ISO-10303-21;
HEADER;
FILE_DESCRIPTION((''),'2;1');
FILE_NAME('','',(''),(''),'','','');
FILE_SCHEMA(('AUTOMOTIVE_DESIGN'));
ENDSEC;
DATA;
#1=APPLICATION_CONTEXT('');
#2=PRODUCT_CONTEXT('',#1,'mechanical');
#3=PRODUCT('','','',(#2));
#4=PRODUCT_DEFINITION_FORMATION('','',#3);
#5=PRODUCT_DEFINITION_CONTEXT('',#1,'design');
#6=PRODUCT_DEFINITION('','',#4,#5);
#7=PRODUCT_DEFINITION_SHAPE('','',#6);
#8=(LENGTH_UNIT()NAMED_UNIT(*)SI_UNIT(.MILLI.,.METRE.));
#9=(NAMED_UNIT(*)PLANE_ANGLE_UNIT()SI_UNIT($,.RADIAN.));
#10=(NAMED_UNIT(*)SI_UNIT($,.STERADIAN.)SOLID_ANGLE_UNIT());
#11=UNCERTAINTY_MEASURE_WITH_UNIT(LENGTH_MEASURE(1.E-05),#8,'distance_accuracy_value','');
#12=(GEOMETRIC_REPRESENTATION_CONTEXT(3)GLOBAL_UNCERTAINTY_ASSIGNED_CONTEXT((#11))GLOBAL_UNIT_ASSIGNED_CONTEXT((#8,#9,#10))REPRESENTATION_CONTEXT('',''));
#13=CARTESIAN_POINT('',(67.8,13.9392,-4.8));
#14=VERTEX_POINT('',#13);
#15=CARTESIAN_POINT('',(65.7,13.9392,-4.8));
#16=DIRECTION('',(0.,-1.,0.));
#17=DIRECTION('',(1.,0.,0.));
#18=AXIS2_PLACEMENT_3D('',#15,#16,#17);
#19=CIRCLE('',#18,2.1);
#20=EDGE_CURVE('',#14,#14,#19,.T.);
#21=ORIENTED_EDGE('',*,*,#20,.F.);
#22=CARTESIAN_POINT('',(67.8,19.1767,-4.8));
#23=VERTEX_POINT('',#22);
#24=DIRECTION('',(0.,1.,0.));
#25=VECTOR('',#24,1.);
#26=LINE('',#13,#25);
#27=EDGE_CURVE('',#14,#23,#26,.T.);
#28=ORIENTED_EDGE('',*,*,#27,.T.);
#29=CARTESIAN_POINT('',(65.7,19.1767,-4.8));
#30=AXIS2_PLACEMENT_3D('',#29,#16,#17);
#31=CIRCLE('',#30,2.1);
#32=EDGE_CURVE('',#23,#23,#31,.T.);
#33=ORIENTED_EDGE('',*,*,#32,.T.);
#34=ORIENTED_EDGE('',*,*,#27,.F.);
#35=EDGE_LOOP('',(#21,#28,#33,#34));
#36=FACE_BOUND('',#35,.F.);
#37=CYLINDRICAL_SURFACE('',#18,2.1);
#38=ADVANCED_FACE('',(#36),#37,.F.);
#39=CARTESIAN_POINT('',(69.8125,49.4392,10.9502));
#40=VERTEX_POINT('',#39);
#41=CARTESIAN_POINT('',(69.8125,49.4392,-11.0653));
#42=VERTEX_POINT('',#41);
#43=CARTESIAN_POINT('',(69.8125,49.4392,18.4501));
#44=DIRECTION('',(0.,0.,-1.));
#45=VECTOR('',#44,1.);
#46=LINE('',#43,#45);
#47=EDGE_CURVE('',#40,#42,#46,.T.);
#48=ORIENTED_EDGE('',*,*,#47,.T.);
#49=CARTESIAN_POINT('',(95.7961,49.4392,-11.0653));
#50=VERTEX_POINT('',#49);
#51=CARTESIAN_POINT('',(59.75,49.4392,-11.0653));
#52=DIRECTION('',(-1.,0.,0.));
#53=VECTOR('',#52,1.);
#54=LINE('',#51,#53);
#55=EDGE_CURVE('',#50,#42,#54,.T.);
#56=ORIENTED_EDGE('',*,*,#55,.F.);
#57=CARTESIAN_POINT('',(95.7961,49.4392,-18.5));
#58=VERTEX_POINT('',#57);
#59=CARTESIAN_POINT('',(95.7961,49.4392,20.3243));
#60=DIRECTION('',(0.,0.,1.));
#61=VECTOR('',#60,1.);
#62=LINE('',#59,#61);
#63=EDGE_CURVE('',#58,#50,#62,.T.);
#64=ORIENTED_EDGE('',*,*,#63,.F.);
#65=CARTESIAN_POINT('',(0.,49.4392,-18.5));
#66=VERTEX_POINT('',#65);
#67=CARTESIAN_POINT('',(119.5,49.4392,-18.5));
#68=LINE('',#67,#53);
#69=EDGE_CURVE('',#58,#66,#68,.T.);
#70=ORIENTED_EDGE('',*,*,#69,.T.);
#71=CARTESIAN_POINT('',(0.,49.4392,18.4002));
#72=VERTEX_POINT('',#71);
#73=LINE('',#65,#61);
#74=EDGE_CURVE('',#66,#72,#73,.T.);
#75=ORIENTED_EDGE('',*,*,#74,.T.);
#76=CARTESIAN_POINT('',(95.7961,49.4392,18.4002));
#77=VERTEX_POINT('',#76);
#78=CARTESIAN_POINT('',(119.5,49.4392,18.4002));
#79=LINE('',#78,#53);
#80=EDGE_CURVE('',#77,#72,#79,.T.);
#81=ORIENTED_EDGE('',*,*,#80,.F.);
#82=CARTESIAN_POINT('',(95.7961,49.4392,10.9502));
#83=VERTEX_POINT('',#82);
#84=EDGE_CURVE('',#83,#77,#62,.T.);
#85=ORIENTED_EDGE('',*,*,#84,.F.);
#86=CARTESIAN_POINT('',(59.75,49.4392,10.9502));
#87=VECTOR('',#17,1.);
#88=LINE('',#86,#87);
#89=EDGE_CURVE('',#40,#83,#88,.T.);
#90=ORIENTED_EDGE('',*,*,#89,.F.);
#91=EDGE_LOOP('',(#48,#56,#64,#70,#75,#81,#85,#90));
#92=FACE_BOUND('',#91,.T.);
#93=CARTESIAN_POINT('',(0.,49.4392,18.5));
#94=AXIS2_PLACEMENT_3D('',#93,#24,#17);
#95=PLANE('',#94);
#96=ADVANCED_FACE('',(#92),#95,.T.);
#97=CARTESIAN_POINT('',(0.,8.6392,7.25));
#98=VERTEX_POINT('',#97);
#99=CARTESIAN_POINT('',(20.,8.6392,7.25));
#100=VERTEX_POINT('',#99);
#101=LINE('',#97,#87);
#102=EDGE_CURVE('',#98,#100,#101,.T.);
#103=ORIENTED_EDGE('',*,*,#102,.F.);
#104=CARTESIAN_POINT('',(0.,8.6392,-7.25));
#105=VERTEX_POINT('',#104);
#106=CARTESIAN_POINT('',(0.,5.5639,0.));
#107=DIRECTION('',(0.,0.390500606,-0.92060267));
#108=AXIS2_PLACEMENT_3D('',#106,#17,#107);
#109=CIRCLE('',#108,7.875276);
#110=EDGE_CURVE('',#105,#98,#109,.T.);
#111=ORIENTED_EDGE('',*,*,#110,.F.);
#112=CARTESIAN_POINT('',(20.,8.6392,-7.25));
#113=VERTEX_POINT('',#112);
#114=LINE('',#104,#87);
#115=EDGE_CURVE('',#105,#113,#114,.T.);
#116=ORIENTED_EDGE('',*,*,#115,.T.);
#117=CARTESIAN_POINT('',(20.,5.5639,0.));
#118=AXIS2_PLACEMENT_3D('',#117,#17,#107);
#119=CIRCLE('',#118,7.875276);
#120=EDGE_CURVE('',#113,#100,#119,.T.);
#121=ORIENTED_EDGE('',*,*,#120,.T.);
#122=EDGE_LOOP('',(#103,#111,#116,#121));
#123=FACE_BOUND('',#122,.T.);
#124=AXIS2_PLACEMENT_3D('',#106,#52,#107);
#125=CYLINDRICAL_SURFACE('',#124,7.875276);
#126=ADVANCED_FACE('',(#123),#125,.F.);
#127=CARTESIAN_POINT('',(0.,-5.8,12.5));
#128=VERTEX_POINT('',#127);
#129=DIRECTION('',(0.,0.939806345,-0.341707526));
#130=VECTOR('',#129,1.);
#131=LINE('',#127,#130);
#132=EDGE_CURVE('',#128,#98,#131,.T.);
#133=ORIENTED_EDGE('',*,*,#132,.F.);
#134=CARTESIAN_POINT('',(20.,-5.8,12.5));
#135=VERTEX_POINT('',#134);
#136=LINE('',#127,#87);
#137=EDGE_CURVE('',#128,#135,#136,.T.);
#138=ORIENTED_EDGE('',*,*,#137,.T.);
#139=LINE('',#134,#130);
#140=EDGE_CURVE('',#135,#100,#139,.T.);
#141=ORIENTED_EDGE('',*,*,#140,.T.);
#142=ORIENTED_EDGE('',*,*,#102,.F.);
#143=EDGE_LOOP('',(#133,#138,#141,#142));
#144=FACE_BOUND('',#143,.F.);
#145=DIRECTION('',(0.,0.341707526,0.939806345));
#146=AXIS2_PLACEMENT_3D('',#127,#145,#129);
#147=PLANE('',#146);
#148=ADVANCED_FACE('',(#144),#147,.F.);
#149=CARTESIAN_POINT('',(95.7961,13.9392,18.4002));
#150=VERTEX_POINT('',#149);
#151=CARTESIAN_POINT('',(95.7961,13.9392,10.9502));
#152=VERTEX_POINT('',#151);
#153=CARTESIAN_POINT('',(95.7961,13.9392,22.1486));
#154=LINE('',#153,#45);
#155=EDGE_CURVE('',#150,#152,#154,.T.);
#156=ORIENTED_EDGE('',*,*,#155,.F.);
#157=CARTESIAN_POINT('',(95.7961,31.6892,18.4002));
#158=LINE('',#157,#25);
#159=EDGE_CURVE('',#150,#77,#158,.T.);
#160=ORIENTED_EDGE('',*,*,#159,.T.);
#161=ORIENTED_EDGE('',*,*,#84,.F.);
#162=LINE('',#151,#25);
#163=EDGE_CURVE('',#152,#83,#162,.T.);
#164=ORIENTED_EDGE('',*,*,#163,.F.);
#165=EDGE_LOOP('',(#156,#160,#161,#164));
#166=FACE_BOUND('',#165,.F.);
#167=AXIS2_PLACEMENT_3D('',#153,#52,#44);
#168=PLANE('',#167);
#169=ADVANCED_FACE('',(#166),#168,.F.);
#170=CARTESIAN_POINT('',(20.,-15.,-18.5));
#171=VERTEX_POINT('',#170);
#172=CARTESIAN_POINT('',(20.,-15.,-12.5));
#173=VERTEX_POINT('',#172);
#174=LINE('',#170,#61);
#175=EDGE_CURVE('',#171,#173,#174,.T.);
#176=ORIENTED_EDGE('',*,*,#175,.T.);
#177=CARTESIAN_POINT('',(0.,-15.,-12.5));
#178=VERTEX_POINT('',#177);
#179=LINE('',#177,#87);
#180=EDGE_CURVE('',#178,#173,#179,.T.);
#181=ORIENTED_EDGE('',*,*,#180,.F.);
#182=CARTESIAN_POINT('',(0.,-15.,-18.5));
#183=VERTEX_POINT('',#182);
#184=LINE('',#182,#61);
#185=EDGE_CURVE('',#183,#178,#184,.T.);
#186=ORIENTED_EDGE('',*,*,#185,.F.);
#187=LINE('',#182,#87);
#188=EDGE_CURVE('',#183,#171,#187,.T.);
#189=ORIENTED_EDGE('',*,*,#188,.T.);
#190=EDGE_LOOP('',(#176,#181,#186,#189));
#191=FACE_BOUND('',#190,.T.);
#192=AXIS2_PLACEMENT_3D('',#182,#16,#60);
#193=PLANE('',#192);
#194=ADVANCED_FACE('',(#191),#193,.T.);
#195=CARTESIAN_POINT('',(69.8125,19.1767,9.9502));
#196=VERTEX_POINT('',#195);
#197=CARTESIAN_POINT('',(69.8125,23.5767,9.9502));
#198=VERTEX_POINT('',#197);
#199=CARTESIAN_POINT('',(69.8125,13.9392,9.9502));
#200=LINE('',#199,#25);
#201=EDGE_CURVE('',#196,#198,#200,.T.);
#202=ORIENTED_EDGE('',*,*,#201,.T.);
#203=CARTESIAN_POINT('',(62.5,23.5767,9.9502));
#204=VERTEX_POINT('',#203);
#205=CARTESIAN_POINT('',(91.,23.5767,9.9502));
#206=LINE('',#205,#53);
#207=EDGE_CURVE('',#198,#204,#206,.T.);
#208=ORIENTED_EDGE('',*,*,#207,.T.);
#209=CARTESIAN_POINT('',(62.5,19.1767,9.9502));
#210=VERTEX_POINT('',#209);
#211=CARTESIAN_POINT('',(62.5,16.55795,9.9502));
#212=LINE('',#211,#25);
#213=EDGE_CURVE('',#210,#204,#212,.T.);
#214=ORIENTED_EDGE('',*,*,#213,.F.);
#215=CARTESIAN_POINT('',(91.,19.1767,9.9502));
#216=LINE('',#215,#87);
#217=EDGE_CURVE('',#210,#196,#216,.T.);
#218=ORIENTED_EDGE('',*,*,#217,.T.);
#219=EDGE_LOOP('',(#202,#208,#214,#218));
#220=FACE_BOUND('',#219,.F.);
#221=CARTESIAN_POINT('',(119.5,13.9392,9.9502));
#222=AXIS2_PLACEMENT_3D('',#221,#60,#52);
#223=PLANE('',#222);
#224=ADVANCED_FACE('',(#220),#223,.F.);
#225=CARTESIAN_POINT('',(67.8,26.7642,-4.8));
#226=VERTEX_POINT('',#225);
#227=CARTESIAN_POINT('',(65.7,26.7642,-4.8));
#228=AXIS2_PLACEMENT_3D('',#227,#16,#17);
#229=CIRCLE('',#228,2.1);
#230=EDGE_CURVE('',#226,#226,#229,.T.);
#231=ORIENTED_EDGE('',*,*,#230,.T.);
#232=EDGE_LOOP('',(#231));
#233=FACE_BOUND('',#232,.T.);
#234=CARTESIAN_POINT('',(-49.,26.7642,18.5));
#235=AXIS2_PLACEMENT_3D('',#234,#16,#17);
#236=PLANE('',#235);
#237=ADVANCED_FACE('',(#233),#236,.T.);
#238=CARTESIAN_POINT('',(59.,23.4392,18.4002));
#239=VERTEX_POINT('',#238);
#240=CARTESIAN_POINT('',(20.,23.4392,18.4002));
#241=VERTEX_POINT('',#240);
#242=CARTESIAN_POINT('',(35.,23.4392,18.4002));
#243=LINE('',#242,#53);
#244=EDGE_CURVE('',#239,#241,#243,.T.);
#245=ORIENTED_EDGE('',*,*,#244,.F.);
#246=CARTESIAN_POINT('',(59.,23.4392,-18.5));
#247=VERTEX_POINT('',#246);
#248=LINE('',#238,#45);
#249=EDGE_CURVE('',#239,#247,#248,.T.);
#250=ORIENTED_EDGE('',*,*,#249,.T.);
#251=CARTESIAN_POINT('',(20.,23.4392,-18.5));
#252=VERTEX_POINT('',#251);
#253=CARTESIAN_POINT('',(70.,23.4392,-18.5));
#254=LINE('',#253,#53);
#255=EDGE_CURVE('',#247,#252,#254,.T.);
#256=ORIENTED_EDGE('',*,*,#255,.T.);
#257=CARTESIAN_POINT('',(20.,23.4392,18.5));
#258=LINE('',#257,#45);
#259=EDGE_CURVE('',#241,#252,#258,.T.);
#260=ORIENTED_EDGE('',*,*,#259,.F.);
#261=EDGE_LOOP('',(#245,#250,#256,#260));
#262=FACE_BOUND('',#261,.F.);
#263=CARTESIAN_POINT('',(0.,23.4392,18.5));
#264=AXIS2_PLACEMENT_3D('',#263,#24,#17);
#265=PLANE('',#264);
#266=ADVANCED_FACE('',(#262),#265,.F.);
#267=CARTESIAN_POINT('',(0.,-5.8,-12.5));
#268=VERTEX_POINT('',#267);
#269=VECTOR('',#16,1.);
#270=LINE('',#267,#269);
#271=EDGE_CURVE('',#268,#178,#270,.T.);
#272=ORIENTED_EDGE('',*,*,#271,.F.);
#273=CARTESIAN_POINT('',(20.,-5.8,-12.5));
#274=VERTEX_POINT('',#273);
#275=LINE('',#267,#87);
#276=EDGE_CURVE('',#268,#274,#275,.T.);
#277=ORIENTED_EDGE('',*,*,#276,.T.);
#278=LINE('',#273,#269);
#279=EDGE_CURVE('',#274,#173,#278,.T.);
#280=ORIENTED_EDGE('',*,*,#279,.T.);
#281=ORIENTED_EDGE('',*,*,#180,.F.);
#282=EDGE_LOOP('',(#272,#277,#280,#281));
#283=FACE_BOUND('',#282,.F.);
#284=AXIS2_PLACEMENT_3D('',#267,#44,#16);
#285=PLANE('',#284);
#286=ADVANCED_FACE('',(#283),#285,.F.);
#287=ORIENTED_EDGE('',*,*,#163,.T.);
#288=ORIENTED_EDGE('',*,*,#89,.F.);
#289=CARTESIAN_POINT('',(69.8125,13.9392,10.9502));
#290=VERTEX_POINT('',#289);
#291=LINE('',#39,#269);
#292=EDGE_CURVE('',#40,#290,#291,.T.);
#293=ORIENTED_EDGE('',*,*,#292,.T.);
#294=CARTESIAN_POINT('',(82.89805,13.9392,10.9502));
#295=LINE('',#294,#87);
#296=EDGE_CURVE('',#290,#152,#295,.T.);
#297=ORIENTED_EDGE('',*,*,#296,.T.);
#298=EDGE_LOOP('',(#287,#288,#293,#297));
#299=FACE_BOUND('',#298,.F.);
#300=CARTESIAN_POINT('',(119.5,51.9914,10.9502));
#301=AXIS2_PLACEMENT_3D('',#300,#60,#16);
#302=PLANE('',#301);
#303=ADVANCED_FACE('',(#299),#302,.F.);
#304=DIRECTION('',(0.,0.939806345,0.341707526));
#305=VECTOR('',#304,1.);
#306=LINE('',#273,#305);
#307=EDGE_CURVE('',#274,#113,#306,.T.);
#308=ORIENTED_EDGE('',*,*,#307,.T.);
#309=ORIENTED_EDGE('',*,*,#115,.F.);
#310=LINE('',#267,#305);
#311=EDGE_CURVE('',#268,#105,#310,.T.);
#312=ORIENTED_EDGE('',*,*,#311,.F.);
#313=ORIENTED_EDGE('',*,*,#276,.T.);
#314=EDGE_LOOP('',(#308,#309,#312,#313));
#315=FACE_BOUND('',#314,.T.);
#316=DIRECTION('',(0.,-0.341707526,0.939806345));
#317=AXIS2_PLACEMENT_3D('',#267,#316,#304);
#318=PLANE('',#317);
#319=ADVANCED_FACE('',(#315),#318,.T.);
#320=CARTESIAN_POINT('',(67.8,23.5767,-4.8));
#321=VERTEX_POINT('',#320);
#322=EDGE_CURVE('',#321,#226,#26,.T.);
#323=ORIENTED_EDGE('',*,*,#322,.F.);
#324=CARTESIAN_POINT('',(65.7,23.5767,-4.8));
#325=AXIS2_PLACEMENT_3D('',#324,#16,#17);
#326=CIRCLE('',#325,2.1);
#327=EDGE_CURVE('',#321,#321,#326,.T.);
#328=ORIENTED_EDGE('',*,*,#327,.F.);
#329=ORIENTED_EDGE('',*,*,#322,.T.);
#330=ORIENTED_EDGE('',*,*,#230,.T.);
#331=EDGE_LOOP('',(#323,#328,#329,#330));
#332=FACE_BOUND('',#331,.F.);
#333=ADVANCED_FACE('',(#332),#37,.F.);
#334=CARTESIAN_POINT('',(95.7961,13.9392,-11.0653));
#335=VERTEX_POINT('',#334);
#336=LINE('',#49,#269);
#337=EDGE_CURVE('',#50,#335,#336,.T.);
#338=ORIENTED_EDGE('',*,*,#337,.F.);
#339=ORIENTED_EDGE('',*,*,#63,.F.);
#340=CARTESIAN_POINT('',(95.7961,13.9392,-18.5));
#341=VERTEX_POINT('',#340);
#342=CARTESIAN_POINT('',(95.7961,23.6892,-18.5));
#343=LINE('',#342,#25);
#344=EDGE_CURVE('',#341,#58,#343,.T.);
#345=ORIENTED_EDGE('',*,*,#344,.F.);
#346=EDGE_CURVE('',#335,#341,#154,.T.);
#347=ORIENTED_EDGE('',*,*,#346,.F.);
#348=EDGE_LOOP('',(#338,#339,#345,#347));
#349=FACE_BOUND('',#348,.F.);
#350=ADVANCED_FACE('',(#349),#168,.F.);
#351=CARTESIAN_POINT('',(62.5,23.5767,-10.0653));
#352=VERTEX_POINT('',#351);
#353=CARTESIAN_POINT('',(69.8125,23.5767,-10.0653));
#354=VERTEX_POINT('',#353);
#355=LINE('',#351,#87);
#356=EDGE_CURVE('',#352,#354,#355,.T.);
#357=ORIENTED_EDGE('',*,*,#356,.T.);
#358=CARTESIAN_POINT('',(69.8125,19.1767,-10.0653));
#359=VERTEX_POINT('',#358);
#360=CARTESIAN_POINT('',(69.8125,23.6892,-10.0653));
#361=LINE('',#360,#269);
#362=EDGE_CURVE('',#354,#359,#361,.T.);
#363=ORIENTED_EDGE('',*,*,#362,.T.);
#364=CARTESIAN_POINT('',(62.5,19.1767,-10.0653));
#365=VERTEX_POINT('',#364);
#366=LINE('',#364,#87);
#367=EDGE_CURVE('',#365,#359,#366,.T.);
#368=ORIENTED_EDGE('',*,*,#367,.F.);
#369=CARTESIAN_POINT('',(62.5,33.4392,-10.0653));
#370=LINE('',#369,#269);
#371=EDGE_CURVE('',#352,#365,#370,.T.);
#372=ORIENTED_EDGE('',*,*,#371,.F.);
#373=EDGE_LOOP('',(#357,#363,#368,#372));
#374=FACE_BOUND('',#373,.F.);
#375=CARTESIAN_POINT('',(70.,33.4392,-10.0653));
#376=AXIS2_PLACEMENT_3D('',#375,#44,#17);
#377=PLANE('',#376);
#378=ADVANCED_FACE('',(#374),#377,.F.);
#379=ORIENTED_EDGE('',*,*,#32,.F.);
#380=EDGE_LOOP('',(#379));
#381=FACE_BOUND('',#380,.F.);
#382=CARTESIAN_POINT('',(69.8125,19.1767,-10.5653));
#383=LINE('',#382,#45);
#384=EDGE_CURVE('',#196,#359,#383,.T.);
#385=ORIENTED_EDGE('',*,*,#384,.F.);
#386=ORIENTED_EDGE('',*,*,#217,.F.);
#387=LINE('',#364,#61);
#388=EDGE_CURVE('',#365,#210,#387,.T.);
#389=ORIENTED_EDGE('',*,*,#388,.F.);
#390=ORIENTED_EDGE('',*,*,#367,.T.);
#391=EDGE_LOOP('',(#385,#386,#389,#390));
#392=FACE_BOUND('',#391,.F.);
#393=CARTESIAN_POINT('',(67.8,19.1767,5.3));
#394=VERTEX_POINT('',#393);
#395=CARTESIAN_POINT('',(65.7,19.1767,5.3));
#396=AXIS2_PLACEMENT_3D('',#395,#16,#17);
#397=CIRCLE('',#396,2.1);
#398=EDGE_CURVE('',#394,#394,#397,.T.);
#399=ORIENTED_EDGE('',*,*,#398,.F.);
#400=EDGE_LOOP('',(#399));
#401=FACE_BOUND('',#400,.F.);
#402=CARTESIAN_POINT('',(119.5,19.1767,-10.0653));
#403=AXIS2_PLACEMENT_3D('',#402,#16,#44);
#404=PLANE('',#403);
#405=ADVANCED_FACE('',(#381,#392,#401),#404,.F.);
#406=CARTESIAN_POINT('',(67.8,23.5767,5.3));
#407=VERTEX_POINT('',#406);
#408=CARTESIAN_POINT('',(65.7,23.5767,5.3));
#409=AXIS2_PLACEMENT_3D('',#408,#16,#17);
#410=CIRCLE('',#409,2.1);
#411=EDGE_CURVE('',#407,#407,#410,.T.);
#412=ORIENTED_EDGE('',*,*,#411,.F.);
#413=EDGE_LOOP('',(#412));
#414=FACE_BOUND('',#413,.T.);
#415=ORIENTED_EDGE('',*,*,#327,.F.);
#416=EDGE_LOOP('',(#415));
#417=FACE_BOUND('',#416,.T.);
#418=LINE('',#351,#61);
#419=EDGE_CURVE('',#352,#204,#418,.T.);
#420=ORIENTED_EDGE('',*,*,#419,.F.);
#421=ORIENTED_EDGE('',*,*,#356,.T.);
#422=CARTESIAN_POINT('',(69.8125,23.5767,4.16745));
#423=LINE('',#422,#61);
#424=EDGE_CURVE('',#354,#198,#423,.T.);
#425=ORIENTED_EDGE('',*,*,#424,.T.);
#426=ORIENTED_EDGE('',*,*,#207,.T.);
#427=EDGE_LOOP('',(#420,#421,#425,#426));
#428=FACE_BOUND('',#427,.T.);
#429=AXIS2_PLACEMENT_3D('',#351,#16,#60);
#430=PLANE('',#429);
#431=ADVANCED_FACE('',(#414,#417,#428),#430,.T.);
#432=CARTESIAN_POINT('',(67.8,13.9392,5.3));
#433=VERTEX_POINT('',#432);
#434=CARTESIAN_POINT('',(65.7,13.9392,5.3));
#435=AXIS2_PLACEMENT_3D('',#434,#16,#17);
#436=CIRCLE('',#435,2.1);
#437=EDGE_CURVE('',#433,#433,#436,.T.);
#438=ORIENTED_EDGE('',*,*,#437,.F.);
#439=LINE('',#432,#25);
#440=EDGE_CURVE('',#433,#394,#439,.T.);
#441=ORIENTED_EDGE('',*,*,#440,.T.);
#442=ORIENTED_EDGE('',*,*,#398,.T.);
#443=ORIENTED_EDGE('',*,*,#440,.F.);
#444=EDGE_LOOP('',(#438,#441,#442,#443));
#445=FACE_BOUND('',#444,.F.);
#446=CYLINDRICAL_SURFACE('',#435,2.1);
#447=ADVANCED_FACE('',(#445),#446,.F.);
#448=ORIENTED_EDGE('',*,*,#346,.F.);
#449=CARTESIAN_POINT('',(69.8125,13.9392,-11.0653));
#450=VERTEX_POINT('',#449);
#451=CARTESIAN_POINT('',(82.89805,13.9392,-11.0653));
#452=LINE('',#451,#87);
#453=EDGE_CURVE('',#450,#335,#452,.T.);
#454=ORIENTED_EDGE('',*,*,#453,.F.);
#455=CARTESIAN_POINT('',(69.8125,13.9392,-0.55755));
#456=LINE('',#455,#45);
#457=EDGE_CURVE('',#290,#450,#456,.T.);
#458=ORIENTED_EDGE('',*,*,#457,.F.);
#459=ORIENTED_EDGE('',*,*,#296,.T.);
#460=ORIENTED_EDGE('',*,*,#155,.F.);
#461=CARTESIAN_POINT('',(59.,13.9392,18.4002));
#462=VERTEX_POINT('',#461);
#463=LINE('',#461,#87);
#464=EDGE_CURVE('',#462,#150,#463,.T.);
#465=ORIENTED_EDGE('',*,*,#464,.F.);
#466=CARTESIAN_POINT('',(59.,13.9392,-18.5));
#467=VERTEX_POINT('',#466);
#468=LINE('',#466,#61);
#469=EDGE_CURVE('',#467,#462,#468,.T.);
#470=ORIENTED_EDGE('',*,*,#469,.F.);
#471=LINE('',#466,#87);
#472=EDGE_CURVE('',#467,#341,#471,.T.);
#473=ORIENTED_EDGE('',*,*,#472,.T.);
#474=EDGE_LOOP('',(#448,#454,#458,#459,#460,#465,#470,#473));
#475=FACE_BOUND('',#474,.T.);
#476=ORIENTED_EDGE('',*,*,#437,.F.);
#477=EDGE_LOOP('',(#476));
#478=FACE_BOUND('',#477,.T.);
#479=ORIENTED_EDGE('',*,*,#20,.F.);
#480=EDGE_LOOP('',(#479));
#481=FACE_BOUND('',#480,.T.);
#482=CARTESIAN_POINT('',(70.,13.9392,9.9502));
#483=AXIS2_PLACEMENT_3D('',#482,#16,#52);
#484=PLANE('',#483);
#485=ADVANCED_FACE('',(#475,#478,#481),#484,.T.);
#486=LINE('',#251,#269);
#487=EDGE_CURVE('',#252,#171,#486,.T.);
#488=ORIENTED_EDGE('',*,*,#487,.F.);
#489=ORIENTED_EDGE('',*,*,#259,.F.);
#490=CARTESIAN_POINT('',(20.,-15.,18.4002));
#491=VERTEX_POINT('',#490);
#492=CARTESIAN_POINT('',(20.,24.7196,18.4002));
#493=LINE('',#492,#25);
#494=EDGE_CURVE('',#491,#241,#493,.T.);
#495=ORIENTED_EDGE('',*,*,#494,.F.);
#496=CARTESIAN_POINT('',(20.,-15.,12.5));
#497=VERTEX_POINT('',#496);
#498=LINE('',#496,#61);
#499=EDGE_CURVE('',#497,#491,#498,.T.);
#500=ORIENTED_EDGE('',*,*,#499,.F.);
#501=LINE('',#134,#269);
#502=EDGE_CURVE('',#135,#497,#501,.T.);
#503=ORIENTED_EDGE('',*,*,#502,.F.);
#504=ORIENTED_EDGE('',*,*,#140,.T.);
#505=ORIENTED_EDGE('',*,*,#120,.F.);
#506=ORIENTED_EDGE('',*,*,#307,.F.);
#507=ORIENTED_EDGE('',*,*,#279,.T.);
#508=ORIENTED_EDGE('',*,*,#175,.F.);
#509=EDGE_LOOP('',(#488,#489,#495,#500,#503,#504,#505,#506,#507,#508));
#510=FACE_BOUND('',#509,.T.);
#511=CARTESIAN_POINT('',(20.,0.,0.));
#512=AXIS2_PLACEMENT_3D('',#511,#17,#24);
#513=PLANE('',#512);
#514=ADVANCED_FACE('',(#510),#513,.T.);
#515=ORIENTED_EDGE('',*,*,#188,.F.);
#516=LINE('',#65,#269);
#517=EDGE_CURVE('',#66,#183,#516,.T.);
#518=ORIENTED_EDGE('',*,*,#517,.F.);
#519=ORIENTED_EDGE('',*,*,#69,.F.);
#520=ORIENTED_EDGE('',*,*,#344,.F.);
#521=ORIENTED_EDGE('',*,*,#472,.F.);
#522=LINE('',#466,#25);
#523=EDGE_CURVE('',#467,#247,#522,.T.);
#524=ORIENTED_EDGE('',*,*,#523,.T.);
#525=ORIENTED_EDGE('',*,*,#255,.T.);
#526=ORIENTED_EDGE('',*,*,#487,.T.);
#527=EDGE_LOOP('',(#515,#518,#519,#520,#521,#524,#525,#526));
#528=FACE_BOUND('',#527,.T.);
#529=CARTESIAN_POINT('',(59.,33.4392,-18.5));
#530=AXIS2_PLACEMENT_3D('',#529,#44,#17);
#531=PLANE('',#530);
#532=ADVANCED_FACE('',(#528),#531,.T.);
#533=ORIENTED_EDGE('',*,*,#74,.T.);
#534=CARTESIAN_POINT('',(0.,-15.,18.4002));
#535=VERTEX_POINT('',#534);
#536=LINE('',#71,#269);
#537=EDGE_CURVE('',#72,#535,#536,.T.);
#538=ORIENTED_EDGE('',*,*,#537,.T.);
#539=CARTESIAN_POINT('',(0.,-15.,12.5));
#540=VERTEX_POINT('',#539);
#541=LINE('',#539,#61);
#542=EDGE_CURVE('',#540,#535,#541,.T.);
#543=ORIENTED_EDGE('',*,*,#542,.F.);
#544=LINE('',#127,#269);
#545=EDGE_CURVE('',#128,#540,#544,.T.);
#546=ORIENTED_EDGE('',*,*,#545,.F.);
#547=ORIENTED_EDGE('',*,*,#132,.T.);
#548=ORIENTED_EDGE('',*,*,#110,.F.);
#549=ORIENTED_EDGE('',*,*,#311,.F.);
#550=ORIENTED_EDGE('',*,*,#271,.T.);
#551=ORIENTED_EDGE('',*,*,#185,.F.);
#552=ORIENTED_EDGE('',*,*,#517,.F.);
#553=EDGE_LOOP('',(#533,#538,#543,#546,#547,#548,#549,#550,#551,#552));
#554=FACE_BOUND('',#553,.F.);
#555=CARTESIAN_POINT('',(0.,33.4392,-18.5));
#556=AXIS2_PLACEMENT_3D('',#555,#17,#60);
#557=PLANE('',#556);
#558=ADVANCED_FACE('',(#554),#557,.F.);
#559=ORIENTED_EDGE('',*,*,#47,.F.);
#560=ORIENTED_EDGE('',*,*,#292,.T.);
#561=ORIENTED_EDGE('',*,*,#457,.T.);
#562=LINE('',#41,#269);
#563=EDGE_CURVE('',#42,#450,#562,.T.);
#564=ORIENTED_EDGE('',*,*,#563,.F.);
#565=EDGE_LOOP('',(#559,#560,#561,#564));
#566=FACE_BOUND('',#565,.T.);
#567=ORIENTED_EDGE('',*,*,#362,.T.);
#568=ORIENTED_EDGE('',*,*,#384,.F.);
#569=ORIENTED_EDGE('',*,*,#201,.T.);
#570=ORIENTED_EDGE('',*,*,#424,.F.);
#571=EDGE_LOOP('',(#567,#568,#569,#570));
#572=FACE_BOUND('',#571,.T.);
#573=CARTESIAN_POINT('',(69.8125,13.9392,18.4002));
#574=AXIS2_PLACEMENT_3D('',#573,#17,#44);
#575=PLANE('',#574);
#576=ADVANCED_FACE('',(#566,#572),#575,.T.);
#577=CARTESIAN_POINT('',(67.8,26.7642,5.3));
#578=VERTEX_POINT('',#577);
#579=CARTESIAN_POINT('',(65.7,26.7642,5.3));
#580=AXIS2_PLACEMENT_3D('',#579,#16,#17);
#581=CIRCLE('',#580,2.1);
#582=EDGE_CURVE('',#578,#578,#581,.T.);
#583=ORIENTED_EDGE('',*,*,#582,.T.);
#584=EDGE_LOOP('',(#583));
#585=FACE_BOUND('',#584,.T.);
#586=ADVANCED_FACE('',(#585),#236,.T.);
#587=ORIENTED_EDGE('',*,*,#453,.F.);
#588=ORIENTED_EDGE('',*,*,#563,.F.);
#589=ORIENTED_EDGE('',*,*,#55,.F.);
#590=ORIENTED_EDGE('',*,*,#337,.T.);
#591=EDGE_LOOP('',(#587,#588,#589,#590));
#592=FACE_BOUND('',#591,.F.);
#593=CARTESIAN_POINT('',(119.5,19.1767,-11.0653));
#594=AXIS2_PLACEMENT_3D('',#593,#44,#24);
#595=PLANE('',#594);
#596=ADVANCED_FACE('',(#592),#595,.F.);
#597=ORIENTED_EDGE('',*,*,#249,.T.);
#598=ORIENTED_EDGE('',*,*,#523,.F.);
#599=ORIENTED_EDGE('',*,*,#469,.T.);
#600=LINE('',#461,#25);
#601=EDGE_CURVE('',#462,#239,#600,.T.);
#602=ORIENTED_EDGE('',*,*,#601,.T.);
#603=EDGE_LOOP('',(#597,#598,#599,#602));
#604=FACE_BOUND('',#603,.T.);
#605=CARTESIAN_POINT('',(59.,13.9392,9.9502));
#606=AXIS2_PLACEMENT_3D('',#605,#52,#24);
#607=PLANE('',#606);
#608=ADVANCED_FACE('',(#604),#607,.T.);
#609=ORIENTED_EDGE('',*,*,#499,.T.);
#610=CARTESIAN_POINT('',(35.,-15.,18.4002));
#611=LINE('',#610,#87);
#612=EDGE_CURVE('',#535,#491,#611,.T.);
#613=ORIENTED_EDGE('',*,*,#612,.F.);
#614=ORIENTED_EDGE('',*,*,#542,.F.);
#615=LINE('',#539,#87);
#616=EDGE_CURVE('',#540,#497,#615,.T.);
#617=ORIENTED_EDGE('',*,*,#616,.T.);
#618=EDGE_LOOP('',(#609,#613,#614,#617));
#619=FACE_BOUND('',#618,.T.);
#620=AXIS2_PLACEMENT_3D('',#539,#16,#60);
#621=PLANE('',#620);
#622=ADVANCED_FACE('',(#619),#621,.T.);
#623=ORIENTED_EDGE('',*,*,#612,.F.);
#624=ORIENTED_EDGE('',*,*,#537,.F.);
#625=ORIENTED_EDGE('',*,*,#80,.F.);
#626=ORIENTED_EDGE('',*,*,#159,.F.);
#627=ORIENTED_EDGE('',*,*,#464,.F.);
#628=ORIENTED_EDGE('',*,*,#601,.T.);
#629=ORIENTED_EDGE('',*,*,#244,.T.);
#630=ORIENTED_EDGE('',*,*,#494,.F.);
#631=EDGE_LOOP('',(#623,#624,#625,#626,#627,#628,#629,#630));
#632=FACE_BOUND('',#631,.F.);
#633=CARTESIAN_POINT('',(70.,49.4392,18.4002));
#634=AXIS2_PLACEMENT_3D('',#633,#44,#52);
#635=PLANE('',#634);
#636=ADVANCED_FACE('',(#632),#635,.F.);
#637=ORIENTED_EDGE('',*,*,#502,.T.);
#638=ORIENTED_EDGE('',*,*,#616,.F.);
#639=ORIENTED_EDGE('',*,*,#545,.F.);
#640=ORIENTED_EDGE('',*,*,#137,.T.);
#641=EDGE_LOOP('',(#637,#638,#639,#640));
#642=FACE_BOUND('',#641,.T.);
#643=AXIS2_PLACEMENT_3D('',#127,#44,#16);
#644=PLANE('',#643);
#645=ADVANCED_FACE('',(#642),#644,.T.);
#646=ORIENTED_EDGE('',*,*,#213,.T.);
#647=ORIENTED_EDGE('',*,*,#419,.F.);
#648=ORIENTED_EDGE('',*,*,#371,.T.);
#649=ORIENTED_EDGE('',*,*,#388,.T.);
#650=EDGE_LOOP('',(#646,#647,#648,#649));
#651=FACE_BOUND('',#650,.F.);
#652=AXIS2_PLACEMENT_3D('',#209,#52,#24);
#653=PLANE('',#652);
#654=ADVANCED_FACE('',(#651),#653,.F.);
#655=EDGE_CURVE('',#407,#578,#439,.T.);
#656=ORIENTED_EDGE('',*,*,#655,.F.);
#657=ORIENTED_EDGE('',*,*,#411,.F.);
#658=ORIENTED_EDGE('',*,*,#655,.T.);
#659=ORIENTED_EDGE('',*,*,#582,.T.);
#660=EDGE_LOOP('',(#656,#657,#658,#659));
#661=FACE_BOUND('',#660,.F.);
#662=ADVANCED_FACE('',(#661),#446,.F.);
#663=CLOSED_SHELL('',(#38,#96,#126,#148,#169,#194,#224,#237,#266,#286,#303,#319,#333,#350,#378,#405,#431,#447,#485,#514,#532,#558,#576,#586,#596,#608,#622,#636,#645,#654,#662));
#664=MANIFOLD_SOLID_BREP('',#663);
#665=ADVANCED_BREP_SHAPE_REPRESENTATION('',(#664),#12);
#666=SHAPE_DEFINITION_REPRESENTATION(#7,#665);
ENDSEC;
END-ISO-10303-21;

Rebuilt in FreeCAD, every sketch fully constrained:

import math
import FreeCAD as App
import Part
import Sketcher

V = App.Vector
Q = App.Units.Quantity

doc = App.newDocument("Part")
body = doc.addObject("PartDesign::Body", "Body")

# Sketch on YZ plane
sketch1 = body.newObject("Sketcher::SketchObject", "Sketch")
sketch1.AttachmentSupport = (doc.getObject("YZ_Plane"), [""])
sketch1.MapMode = "FlatFace"
sketch1.addGeometry([
    Part.LineSegment(V(-15, 12, 0), V(-6, 12, 0)),  # 0
    Part.LineSegment(V(-6, 12, 0), V(9, 7, 0)),  # 1
    Part.ArcOfCircle(Part.Circle(V(6, 0, 0), V(0, 0, 1), 8), math.radians(-67), math.radians(67)),  # 2
    Part.LineSegment(V(9, -7, 0), V(-6, -12, 0)),  # 3
    Part.LineSegment(V(-6, -12, 0), V(-15, -12, 0)),  # 4
    Part.LineSegment(V(-15, -12, 0), V(-15, -18, 0)),  # 5
    Part.LineSegment(V(-15, -18, 0), V(23, -18, 0)),  # 6
    Part.LineSegment(V(23, -18, 0), V(23, 18, 0)),  # 7
    Part.LineSegment(V(23, 18, 0), V(-15, 18, 0)),  # 8
    Part.LineSegment(V(-15, 18, 0), V(-15, 12, 0)),  # 9
], False)
sketch1.addConstraint([
    Sketcher.Constraint("Coincident", 0, 2, 1, 1),
    Sketcher.Constraint("Coincident", 1, 2, 2, 2),
    Sketcher.Constraint("Coincident", 2, 1, 3, 1),
    Sketcher.Constraint("Coincident", 3, 2, 4, 1),
    Sketcher.Constraint("Coincident", 4, 2, 5, 1),
    Sketcher.Constraint("Coincident", 5, 2, 6, 1),
    Sketcher.Constraint("Coincident", 6, 2, 7, 1),
    Sketcher.Constraint("Coincident", 7, 2, 8, 1),
    Sketcher.Constraint("Coincident", 8, 2, 9, 1),
    Sketcher.Constraint("Coincident", 9, 2, 0, 1),
    Sketcher.Constraint("Horizontal", 0),
    Sketcher.Constraint("Horizontal", 4),
    Sketcher.Constraint("Vertical", 5),
    Sketcher.Constraint("Horizontal", 6),
    Sketcher.Constraint("Vertical", 7),
    Sketcher.Constraint("Horizontal", 8),
    Sketcher.Constraint("Vertical", 9),
    Sketcher.Constraint("Symmetric", 1, 2, 2, 1, -1),
    Sketcher.Constraint("Symmetric", 0, 2, 3, 2, -1),
    Sketcher.Constraint("Symmetric", 5, 2, 8, 2, -1),
    Sketcher.Constraint("DistanceY", 5, 2, 5, 1, Q("6 mm")),
    Sketcher.Constraint("DistanceY", 7, 1, 7, 2, Q("37 mm")),
    Sketcher.Constraint("DistanceX", 0, 1, 0, 2, Q("9.2 mm")),
    Sketcher.Constraint("DistanceX", 4, 2, -1, 1, Q("15 mm")),
    Sketcher.Constraint("DistanceY", 2, 1, 1, 2, Q("14.5 mm")),
    Sketcher.Constraint("DistanceX", -1, 1, 6, 2, Q("23.4392 mm")),
    Sketcher.Constraint("Angle", 1, Q("-19.981 deg")),
    Sketcher.Constraint("Radius", 2, Q("7.8753 mm")),
])
pad1 = body.newObject("PartDesign::Pad", "Pad")
pad1.Profile = sketch1
pad1.Length = 20

# Sketch on XZ plane
sketch2 = body.newObject("Sketcher::SketchObject", "Sketch001")
sketch2.AttachmentSupport = (doc.getObject("XZ_Plane"), [""])
sketch2.MapMode = "FlatFace"
sketch2.AttachmentOffset = App.Placement(V(0, 0, -23.4392), App.Rotation())
sketch2.addGeometry([
    Part.LineSegment(V(0, -18, 0), V(0, 18, 0)),
    Part.LineSegment(V(0, 18, 0), V(70, 18, 0)),
    Part.LineSegment(V(70, 18, 0), V(70, -18, 0)),
    Part.LineSegment(V(70, -18, 0), V(0, -18, 0)),
], False)
sketch2.addConstraint([
    Sketcher.Constraint("Coincident", 0, 2, 1, 1),
    Sketcher.Constraint("Coincident", 1, 2, 2, 1),
    Sketcher.Constraint("Coincident", 2, 2, 3, 1),
    Sketcher.Constraint("Coincident", 3, 2, 0, 1),
    Sketcher.Constraint("Vertical", 0),
    Sketcher.Constraint("Horizontal", 1),
    Sketcher.Constraint("Vertical", 2),
    Sketcher.Constraint("Horizontal", 3),
    Sketcher.Constraint("PointOnObject", 0, 2, -2),
    Sketcher.Constraint("DistanceX", 1, 1, 1, 2, Q("70 mm")),
    Sketcher.Constraint("DistanceY", 2, 2, -1, 1, Q("18.5 mm")),
    Sketcher.Constraint("DistanceY", 0, 1, 0, 2, Q("36.9005 mm")),
])
pad2 = body.newObject("PartDesign::Pad", "Pad001")
pad2.Profile = sketch2
pad2.Length = 10
pad2.Reversed = True

# Sketch on XZ plane
sketch3 = body.newObject("Sketcher::SketchObject", "Sketch002")
sketch3.AttachmentSupport = (doc.getObject("XZ_Plane"), [""])
sketch3.MapMode = "FlatFace"
sketch3.AttachmentOffset = App.Placement(V(0, 0, -23.4392), App.Rotation())
sketch3.addGeometry([
    Part.LineSegment(V(120, 10, 0), V(110, 10, 0)),  # 0
    Part.LineSegment(V(110, 10, 0), V(110, -10, 0)),  # 1
    Part.LineSegment(V(110, -10, 0), V(70, -10, 0)),  # 2
    Part.LineSegment(V(70, -10, 0), V(70, 10, 0)),  # 3
    Part.LineSegment(V(70, 10, 0), V(59, 10, 0)),  # 4
    Part.LineSegment(V(59, 10, 0), V(59, -18, 0)),  # 5
    Part.LineSegment(V(59, -18, 0), V(120, -18, 0)),  # 6
    Part.LineSegment(V(120, -18, 0), V(120, 10, 0)),  # 7
], False)
sketch3.addConstraint([
    Sketcher.Constraint("Coincident", 0, 2, 1, 1),
    Sketcher.Constraint("Coincident", 1, 2, 2, 1),
    Sketcher.Constraint("Coincident", 2, 2, 3, 1),
    Sketcher.Constraint("Coincident", 3, 2, 4, 1),
    Sketcher.Constraint("Coincident", 4, 2, 5, 1),
    Sketcher.Constraint("Coincident", 5, 2, 6, 1),
    Sketcher.Constraint("Coincident", 6, 2, 7, 1),
    Sketcher.Constraint("Coincident", 7, 2, 0, 1),
    Sketcher.Constraint("Horizontal", 0),
    Sketcher.Constraint("Vertical", 1),
    Sketcher.Constraint("Horizontal", 2),
    Sketcher.Constraint("Vertical", 3),
    Sketcher.Constraint("Horizontal", 4),
    Sketcher.Constraint("Vertical", 5),
    Sketcher.Constraint("Horizontal", 6),
    Sketcher.Constraint("Vertical", 7),
    Sketcher.Constraint("Horizontal", 0, 2, 3, 2),
    Sketcher.Constraint("DistanceX", 0, 2, 0, 1, Q("9 mm")),
    Sketcher.Constraint("DistanceX", 4, 2, 4, 1, Q("11 mm")),
    Sketcher.Constraint("DistanceY", 1, 2, 1, 1, Q("20 mm")),
    Sketcher.Constraint("DistanceX", 2, 2, 2, 1, Q("40.5 mm")),
    Sketcher.Constraint("DistanceX", -1, 1, 2, 2, Q("70 mm")),
    Sketcher.Constraint("DistanceY", 5, 2, -1, 1, Q("18.5 mm")),
    Sketcher.Constraint("DistanceY", 5, 2, 5, 1, Q("28.4502 mm")),
])
pad3 = body.newObject("PartDesign::Pad", "Pad002")
pad3.Profile = sketch3
pad3.Type = "TwoLengths"
pad3.Length = 9.5
pad3.Length2 = 10

# Sketch on XZ plane
sketch4 = body.newObject("Sketcher::SketchObject", "Sketch003")
sketch4.AttachmentSupport = (doc.getObject("XZ_Plane"), [""])
sketch4.MapMode = "FlatFace"
sketch4.AttachmentOffset = App.Placement(V(0, 0, -33.4392), App.Rotation())
sketch4.addGeometry([
    Part.LineSegment(V(62, 10, 0), V(120, 10, 0)),
    Part.LineSegment(V(120, 10, 0), V(120, -10, 0)),
    Part.LineSegment(V(120, -10, 0), V(62, -10, 0)),
    Part.LineSegment(V(62, -10, 0), V(62, 10, 0)),
], False)
sketch4.addConstraint([
    Sketcher.Constraint("Coincident", 0, 2, 1, 1),
    Sketcher.Constraint("Coincident", 1, 2, 2, 1),
    Sketcher.Constraint("Coincident", 2, 2, 3, 1),
    Sketcher.Constraint("Coincident", 3, 2, 0, 1),
    Sketcher.Constraint("Horizontal", 0),
    Sketcher.Constraint("Vertical", 1),
    Sketcher.Constraint("Horizontal", 2),
    Sketcher.Constraint("Vertical", 3),
    Sketcher.Constraint("DistanceX", 0, 1, 0, 2, Q("57 mm")),
    Sketcher.Constraint("DistanceX", -1, 1, 0, 2, Q("119.5 mm")),
    Sketcher.Constraint("DistanceY", 1, 2, 1, 1, Q("20.0155 mm")),
    Sketcher.Constraint("DistanceY", -1, 1, 0, 2, Q("9.9502 mm")),
])
pocket1 = body.newObject("PartDesign::Pocket", "Pocket")
pocket1.Profile = sketch4
pocket1.Length = 14.2625
pocket1.Reversed = True

# Sketch on XZ plane
sketch5 = body.newObject("Sketcher::SketchObject", "Sketch004")
sketch5.AttachmentSupport = (doc.getObject("XZ_Plane"), [""])
sketch5.MapMode = "FlatFace"
sketch5.AttachmentOffset = App.Placement(V(0, 0, -33.4392), App.Rotation())
sketch5.addGeometry([
    Part.LineSegment(V(70, 10, 0), V(62, 10, 0)),
    Part.LineSegment(V(62, 10, 0), V(62, 20, 0)),
    Part.LineSegment(V(62, 20, 0), V(70, 20, 0)),
    Part.LineSegment(V(70, 20, 0), V(70, 10, 0)),
], False)
sketch5.addConstraint([
    Sketcher.Constraint("Coincident", 0, 2, 1, 1),
    Sketcher.Constraint("Coincident", 1, 2, 2, 1),
    Sketcher.Constraint("Coincident", 2, 2, 3, 1),
    Sketcher.Constraint("Coincident", 3, 2, 0, 1),
    Sketcher.Constraint("Horizontal", 0),
    Sketcher.Constraint("Vertical", 1),
    Sketcher.Constraint("Horizontal", 2),
    Sketcher.Constraint("Vertical", 3),
    Sketcher.Constraint("DistanceX", 0, 2, 0, 1, Q("7.5 mm")),
    Sketcher.Constraint("DistanceX", -1, 1, 2, 2, Q("70 mm")),
    Sketcher.Constraint("DistanceY", 1, 1, 1, 2, Q("9.5666 mm")),
    Sketcher.Constraint("DistanceY", -1, 1, 0, 2, Q("9.9502 mm")),
])
pocket2 = body.newObject("PartDesign::Pocket", "Pocket001")
pocket2.Profile = sketch5
pocket2.Length = 14.2625
pocket2.Reversed = True

# Sketch on XY plane
sketch6 = body.newObject("Sketcher::SketchObject", "Sketch005")
sketch6.AttachmentSupport = (doc.getObject("XY_Plane"), [""])
sketch6.MapMode = "FlatFace"
sketch6.AttachmentOffset = App.Placement(V(0, 0, 9.9502), App.Rotation())
sketch6.addGeometry([
    Part.LineSegment(V(70, 19.2, 0), V(62.5, 19.2, 0)),  # 0
    Part.LineSegment(V(62.5, 19.2, 0), V(62.5, 23.4, 0)),  # 1
    Part.LineSegment(V(62.5, 23.4, 0), V(59, 23.4, 0)),  # 2
    Part.LineSegment(V(59, 23.4, 0), V(59, 13.9, 0)),  # 3
    Part.LineSegment(V(59, 13.9, 0), V(70, 13.9, 0)),  # 4
    Part.LineSegment(V(70, 13.9, 0), V(70, 19.2, 0)),  # 5
], False)
sketch6.addConstraint([
    Sketcher.Constraint("Coincident", 0, 2, 1, 1),
    Sketcher.Constraint("Coincident", 1, 2, 2, 1),
    Sketcher.Constraint("Coincident", 2, 2, 3, 1),
    Sketcher.Constraint("Coincident", 3, 2, 4, 1),
    Sketcher.Constraint("Coincident", 4, 2, 5, 1),
    Sketcher.Constraint("Coincident", 5, 2, 0, 1),
    Sketcher.Constraint("Horizontal", 0),
    Sketcher.Constraint("Vertical", 1),
    Sketcher.Constraint("Horizontal", 2),
    Sketcher.Constraint("Vertical", 3),
    Sketcher.Constraint("Horizontal", 4),
    Sketcher.Constraint("Vertical", 5),
    Sketcher.Constraint("DistanceX", 4, 1, 4, 2, Q("11 mm")),
    Sketcher.Constraint("DistanceX", 0, 2, 0, 1, Q("7.5 mm")),
    Sketcher.Constraint("DistanceY", 3, 2, 3, 1, Q("9.5 mm")),
    Sketcher.Constraint("DistanceX", -1, 1, 2, 2, Q("59 mm")),
    Sketcher.Constraint("DistanceY", 1, 1, 1, 2, Q("4.2625 mm")),
    Sketcher.Constraint("DistanceY", -1, 1, 0, 2, Q("19.1767 mm")),
])
pad4 = body.newObject("PartDesign::Pad", "Pad003")
pad4.Profile = sketch6
pad4.Length = 8.45

# Sketch on YZ plane
sketch7 = body.newObject("Sketcher::SketchObject", "Sketch006")
sketch7.AttachmentSupport = (doc.getObject("YZ_Plane"), [""])
sketch7.MapMode = "FlatFace"
sketch7.AttachmentOffset = App.Placement(V(0, 0, 62.5), App.Rotation())
sketch7.addGeometry([
    Part.LineSegment(V(24, -10, 0), V(33, -10, 0)),
    Part.LineSegment(V(33, -10, 0), V(33, 18, 0)),
    Part.LineSegment(V(33, 18, 0), V(24, 18, 0)),
    Part.LineSegment(V(24, 18, 0), V(24, -10, 0)),
], False)
sketch7.addConstraint([
    Sketcher.Constraint("Coincident", 0, 2, 1, 1),
    Sketcher.Constraint("Coincident", 1, 2, 2, 1),
    Sketcher.Constraint("Coincident", 2, 2, 3, 1),
    Sketcher.Constraint("Coincident", 3, 2, 0, 1),
    Sketcher.Constraint("Horizontal", 0),
    Sketcher.Constraint("Vertical", 1),
    Sketcher.Constraint("Horizontal", 2),
    Sketcher.Constraint("Vertical", 3),
    Sketcher.Constraint("DistanceX", 0, 1, 0, 2, Q("9.8625 mm")),
    Sketcher.Constraint("DistanceY", 1, 1, 1, 2, Q("28.4658 mm")),
    Sketcher.Constraint("DistanceX", -1, 1, 0, 2, Q("33.4392 mm")),
    Sketcher.Constraint("DistanceY", 0, 2, -1, 1, Q("10.0653 mm")),
])
pad5 = body.newObject("PartDesign::Pad", "Pad004")
pad5.Profile = sketch7
pad5.Length = 7.5

# Sketch on XZ plane
sketch8 = body.newObject("Sketcher::SketchObject", "Sketch007")
sketch8.AttachmentSupport = (doc.getObject("XZ_Plane"), [""])
sketch8.MapMode = "FlatFace"
sketch8.AttachmentOffset = App.Placement(V(0, 0, -33.4392), App.Rotation())
sketch8.addGeometry([
    Part.LineSegment(V(120, -18, 0), V(59, -18, 0)),  # 0
    Part.LineSegment(V(59, -18, 0), V(59, 18, 0)),  # 1
    Part.LineSegment(V(59, 18, 0), V(70, 18, 0)),  # 2
    Part.LineSegment(V(70, 18, 0), V(70, -10, 0)),  # 3
    Part.LineSegment(V(70, -10, 0), V(120, -10, 0)),  # 4
    Part.LineSegment(V(120, -10, 0), V(120, -18, 0)),  # 5
], False)
sketch8.addConstraint([
    Sketcher.Constraint("Coincident", 0, 2, 1, 1),
    Sketcher.Constraint("Coincident", 1, 2, 2, 1),
    Sketcher.Constraint("Coincident", 2, 2, 3, 1),
    Sketcher.Constraint("Coincident", 3, 2, 4, 1),
    Sketcher.Constraint("Coincident", 4, 2, 5, 1),
    Sketcher.Constraint("Coincident", 5, 2, 0, 1),
    Sketcher.Constraint("Horizontal", 0),
    Sketcher.Constraint("Vertical", 1),
    Sketcher.Constraint("Horizontal", 2),
    Sketcher.Constraint("Vertical", 3),
    Sketcher.Constraint("Horizontal", 4),
    Sketcher.Constraint("Vertical", 5),
    Sketcher.Constraint("DistanceX", 2, 1, 2, 2, Q("11 mm")),
    Sketcher.Constraint("DistanceX", 0, 2, 0, 1, Q("60.5 mm")),
    Sketcher.Constraint("DistanceX", -1, 1, 0, 2, Q("59 mm")),
    Sketcher.Constraint("DistanceY", 0, 2, -1, 1, Q("18.5 mm")),
    Sketcher.Constraint("DistanceY", 1, 1, 1, 2, Q("36.9002 mm")),
    Sketcher.Constraint("DistanceY", 3, 2, 3, 1, Q("28.4658 mm")),
])
pad6 = body.newObject("PartDesign::Pad", "Pad005")
pad6.Profile = sketch8
pad6.Length = 16
pad6.Reversed = True

# Sketch on XZ plane
sketch9 = body.newObject("Sketcher::SketchObject", "Sketch008")
sketch9.AttachmentSupport = (doc.getObject("XZ_Plane"), [""])
sketch9.MapMode = "FlatFace"
sketch9.AttachmentOffset = App.Placement(V(0, 0, -33.4392), App.Rotation())
sketch9.addGeometry([
    Part.LineSegment(V(0, 18, 0), V(59, 18, 0)),
    Part.LineSegment(V(59, 18, 0), V(59, -18, 0)),
    Part.LineSegment(V(59, -18, 0), V(0, -18, 0)),
    Part.LineSegment(V(0, -18, 0), V(0, 18, 0)),
], False)
sketch9.addConstraint([
    Sketcher.Constraint("Coincident", 0, 2, 1, 1),
    Sketcher.Constraint("Coincident", 1, 2, 2, 1),
    Sketcher.Constraint("Coincident", 2, 2, 3, 1),
    Sketcher.Constraint("Coincident", 3, 2, 0, 1),
    Sketcher.Constraint("Horizontal", 0),
    Sketcher.Constraint("Vertical", 1),
    Sketcher.Constraint("Horizontal", 2),
    Sketcher.Constraint("Vertical", 3),
    Sketcher.Constraint("PointOnObject", 2, 2, -2),
    Sketcher.Constraint("DistanceX", 0, 1, 0, 2, Q("59 mm")),
    Sketcher.Constraint("DistanceY", 1, 2, -1, 1, Q("18.5 mm")),
    Sketcher.Constraint("DistanceY", 1, 2, 1, 1, Q("36.9002 mm")),
])
pad7 = body.newObject("PartDesign::Pad", "Pad006")
pad7.Profile = sketch9
pad7.Length = 16
pad7.Reversed = True

# Sketch on XZ plane
sketch10 = body.newObject("Sketcher::SketchObject", "Sketch009")
sketch10.AttachmentSupport = (doc.getObject("XZ_Plane"), [""])
sketch10.MapMode = "FlatFace"
sketch10.AttachmentOffset = App.Placement(V(0, 0, -49.4392), App.Rotation())
sketch10.addGeometry([
    Part.LineSegment(V(70, 35, 0), V(70, 18, 0)),
    Part.LineSegment(V(70, 18, 0), V(-12, 18, 0)),
    Part.LineSegment(V(-12, 18, 0), V(-12, 35, 0)),
    Part.LineSegment(V(-12, 35, 0), V(70, 35, 0)),
], False)
sketch10.addConstraint([
    Sketcher.Constraint("Coincident", 0, 2, 1, 1),
    Sketcher.Constraint("Coincident", 1, 2, 2, 1),
    Sketcher.Constraint("Coincident", 2, 2, 3, 1),
    Sketcher.Constraint("Coincident", 3, 2, 0, 1),
    Sketcher.Constraint("Vertical", 0),
    Sketcher.Constraint("Horizontal", 1),
    Sketcher.Constraint("Vertical", 2),
    Sketcher.Constraint("Horizontal", 3),
    Sketcher.Constraint("DistanceX", -1, 1, 0, 2, Q("70 mm")),
    Sketcher.Constraint("DistanceX", 1, 2, 1, 1, Q("81.6844 mm")),
    Sketcher.Constraint("DistanceY", 0, 2, 0, 1, Q("16.7846 mm")),
    Sketcher.Constraint("DistanceY", -1, 1, 0, 2, Q("18.4002 mm")),
])
pocket3 = body.newObject("PartDesign::Pocket", "Pocket002")
pocket3.Profile = sketch10
pocket3.Length = 76.325
pocket3.Reversed = True

# Sketch on XZ plane
sketch11 = body.newObject("Sketcher::SketchObject", "Sketch010")
sketch11.AttachmentSupport = (doc.getObject("XZ_Plane"), [""])
sketch11.MapMode = "FlatFace"
sketch11.AttachmentOffset = App.Placement(V(0, 0, -19.1767), App.Rotation())
sketch11.addGeometry([
    Part.LineSegment(V(70, -10.065, 0), V(70, -10.05, 0)),
    Part.LineSegment(V(70, -10.05, 0), V(110.5, -10.05, 0)),
    Part.LineSegment(V(110.5, -10.05, 0), V(110.5, -10.065, 0)),
    Part.LineSegment(V(110.5, -10.065, 0), V(70, -10.065, 0)),
], False)
sketch11.addConstraint([
    Sketcher.Constraint("Coincident", 0, 2, 1, 1),
    Sketcher.Constraint("Coincident", 1, 2, 2, 1),
    Sketcher.Constraint("Coincident", 2, 2, 3, 1),
    Sketcher.Constraint("Coincident", 3, 2, 0, 1),
    Sketcher.Constraint("Vertical", 0),
    Sketcher.Constraint("Horizontal", 1),
    Sketcher.Constraint("Vertical", 2),
    Sketcher.Constraint("Horizontal", 3),
    Sketcher.Constraint("DistanceX", 1, 1, 1, 2, Q("40.5 mm")),
    Sketcher.Constraint("DistanceX", -1, 1, 0, 2, Q("70 mm")),
    Sketcher.Constraint("DistanceY", 0, 1, 0, 2, Q("0.0155 mm")),
    Sketcher.Constraint("DistanceY", 0, 2, -1, 1, Q("10.0498 mm")),
])
pocket4 = body.newObject("PartDesign::Pocket", "Pocket003")
pocket4.Profile = sketch11
pocket4.Length = 76.325
pocket4.Reversed = True

# Sketch on XZ plane
sketch12 = body.newObject("Sketcher::SketchObject", "Sketch011")
sketch12.AttachmentSupport = (doc.getObject("XZ_Plane"), [""])
sketch12.MapMode = "FlatFace"
sketch12.AttachmentOffset = App.Placement(V(0, 0, -13.9392), App.Rotation())
sketch12.addGeometry([
    Part.Circle(V(114.7, -4.8, 0), V(0, 0, 1), 2.1),
    Part.Circle(V(114.7, 5.3, 0), V(0, 0, 1), 2.1),
], False)
sketch12.addConstraint([
    Sketcher.Constraint("Equal", 0, 1),
    Sketcher.Constraint("Vertical", 0, 3, 1, 3),
    Sketcher.Constraint("Diameter", 0, Q("4.2 mm")),
    Sketcher.Constraint("DistanceY", 0, 3, -1, 1, Q("4.8 mm")),
    Sketcher.Constraint("DistanceY", 0, 3, 1, 3, Q("10.1 mm")),
    Sketcher.Constraint("DistanceX", -1, 1, 0, 3, Q("114.7 mm")),
])
pocket5 = body.newObject("PartDesign::Pocket", "Pocket004")
pocket5.Profile = sketch12
pocket5.Length = 12.825
doc.recompute()

linearpattern = body.newObject("PartDesign::LinearPattern", "LinearPattern")
linearpattern.Originals = [pocket5]
linearpattern.Direction = (doc.getObject("X_Axis"), [""])
linearpattern.Mode = "offset"
linearpattern.Offset = 49
linearpattern.Occurrences = 2
linearpattern.Reversed = True
body.Tip = linearpattern

# Sketch on XZ plane
sketch13 = body.newObject("Sketcher::SketchObject", "Sketch012")
sketch13.AttachmentSupport = (doc.getObject("XZ_Plane"), [""])
sketch13.MapMode = "FlatFace"
sketch13.AttachmentOffset = App.Placement(V(0, 0, -13.9392), App.Rotation())
sketch13.addGeometry([
    Part.LineSegment(V(120, 18, 0), V(59, 18, 0)),
    Part.LineSegment(V(59, 18, 0), V(59, 10, 0)),
    Part.LineSegment(V(59, 10, 0), V(120, 10, 0)),
    Part.LineSegment(V(120, 10, 0), V(120, 18, 0)),
], False)
sketch13.addConstraint([
    Sketcher.Constraint("Coincident", 0, 2, 1, 1),
    Sketcher.Constraint("Coincident", 1, 2, 2, 1),
    Sketcher.Constraint("Coincident", 2, 2, 3, 1),
    Sketcher.Constraint("Coincident", 3, 2, 0, 1),
    Sketcher.Constraint("Horizontal", 0),
    Sketcher.Constraint("Vertical", 1),
    Sketcher.Constraint("Horizontal", 2),
    Sketcher.Constraint("Vertical", 3),
    Sketcher.Constraint("DistanceX", 0, 2, 0, 1, Q("60.5 mm")),
    Sketcher.Constraint("DistanceX", -1, 1, 0, 2, Q("59 mm")),
    Sketcher.Constraint("DistanceY", 1, 2, 1, 1, Q("8.45 mm")),
    Sketcher.Constraint("DistanceY", -1, 1, 0, 2, Q("18.4002 mm")),
])
pad8 = body.newObject("PartDesign::Pad", "Pad007")
pad8.Profile = sketch13
pad8.Length = 35.5
pad8.Reversed = True

# Sketch on YZ plane
sketch14 = body.newObject("Sketcher::SketchObject", "Sketch013")
sketch14.AttachmentSupport = (doc.getObject("YZ_Plane"), [""])
sketch14.MapMode = "FlatFace"
sketch14.AttachmentOffset = App.Placement(V(0, 0, 119.5), App.Rotation())
sketch14.addGeometry([
    Part.LineSegment(V(52, 11, 0), V(19, 11, 0)),
    Part.LineSegment(V(19, 11, 0), V(19, -11, 0)),
    Part.LineSegment(V(19, -11, 0), V(52, -11, 0)),
    Part.LineSegment(V(52, -11, 0), V(52, 11, 0)),
], False)
sketch14.addConstraint([
    Sketcher.Constraint("Coincident", 0, 2, 1, 1),
    Sketcher.Constraint("Coincident", 1, 2, 2, 1),
    Sketcher.Constraint("Coincident", 2, 2, 3, 1),
    Sketcher.Constraint("Coincident", 3, 2, 0, 1),
    Sketcher.Constraint("Horizontal", 0),
    Sketcher.Constraint("Vertical", 1),
    Sketcher.Constraint("Horizontal", 2),
    Sketcher.Constraint("Vertical", 3),
    Sketcher.Constraint("DistanceX", 0, 2, 0, 1, Q("32.8147 mm")),
    Sketcher.Constraint("DistanceY", 1, 2, 1, 1, Q("22.0155 mm")),
    Sketcher.Constraint("DistanceX", -1, 1, 0, 2, Q("19.1767 mm")),
    Sketcher.Constraint("DistanceY", -1, 1, 0, 2, Q("10.9502 mm")),
])
pocket6 = body.newObject("PartDesign::Pocket", "Pocket005")
pocket6.Profile = sketch14
pocket6.Length = 49.6875

# Sketch on XZ plane
sketch15 = body.newObject("Sketcher::SketchObject", "Sketch014")
sketch15.AttachmentSupport = (doc.getObject("XZ_Plane"), [""])
sketch15.MapMode = "FlatFace"
sketch15.AttachmentOffset = App.Placement(V(0, 0, -13.9392), App.Rotation())
sketch15.addGeometry([
    Part.LineSegment(V(135, -25, 0), V(135, 22, 0)),
    Part.LineSegment(V(135, 22, 0), V(96, 22, 0)),
    Part.LineSegment(V(96, 22, 0), V(96, -25, 0)),
    Part.LineSegment(V(96, -25, 0), V(135, -25, 0)),
], False)
sketch15.addConstraint([
    Sketcher.Constraint("Coincident", 0, 2, 1, 1),
    Sketcher.Constraint("Coincident", 1, 2, 2, 1),
    Sketcher.Constraint("Coincident", 2, 2, 3, 1),
    Sketcher.Constraint("Coincident", 3, 2, 0, 1),
    Sketcher.Constraint("Vertical", 0),
    Sketcher.Constraint("Horizontal", 1),
    Sketcher.Constraint("Vertical", 2),
    Sketcher.Constraint("Horizontal", 3),
    Sketcher.Constraint("DistanceX", 1, 2, 1, 1, Q("39.1662 mm")),
    Sketcher.Constraint("DistanceY", 0, 1, 0, 2, Q("47.6248 mm")),
    Sketcher.Constraint("DistanceX", -1, 1, 1, 2, Q("95.796 mm")),
    Sketcher.Constraint("DistanceY", -1, 1, 0, 2, Q("22.1486 mm")),
])
pocket7 = body.newObject("PartDesign::Pocket", "Pocket006")
pocket7.Profile = sketch15
pocket7.Length = 65.5625

# Sketch on XZ plane
sketch16 = body.newObject("Sketcher::SketchObject", "Sketch015")
sketch16.AttachmentSupport = (doc.getObject("XZ_Plane"), [""])
sketch16.MapMode = "FlatFace"
sketch16.AttachmentOffset = App.Placement(V(0, 0, -49.4392), App.Rotation())
sketch16.addGeometry([
    Part.LineSegment(V(96, 11, 0), V(96, -11, 0)),
    Part.LineSegment(V(96, -11, 0), V(70, -11, 0)),
    Part.LineSegment(V(70, -11, 0), V(70, 11, 0)),
    Part.LineSegment(V(70, 11, 0), V(96, 11, 0)),
], False)
sketch16.addConstraint([
    Sketcher.Constraint("Coincident", 0, 2, 1, 1),
    Sketcher.Constraint("Coincident", 1, 2, 2, 1),
    Sketcher.Constraint("Coincident", 2, 2, 3, 1),
    Sketcher.Constraint("Coincident", 3, 2, 0, 1),
    Sketcher.Constraint("Vertical", 0),
    Sketcher.Constraint("Horizontal", 1),
    Sketcher.Constraint("Vertical", 2),
    Sketcher.Constraint("Horizontal", 3),
    Sketcher.Constraint("DistanceX", 1, 2, 1, 1, Q("25.9836 mm")),
    Sketcher.Constraint("DistanceY", 0, 2, 0, 1, Q("22.0155 mm")),
    Sketcher.Constraint("DistanceX", -1, 1, 0, 2, Q("95.796 mm")),
    Sketcher.Constraint("DistanceY", 0, 2, -1, 1, Q("11.0653 mm")),
])
pocket8 = body.newObject("PartDesign::Pocket", "Pocket007")
pocket8.Profile = sketch16
pocket8.Length = 65.5625
pocket8.Reversed = True

doc.recompute()
